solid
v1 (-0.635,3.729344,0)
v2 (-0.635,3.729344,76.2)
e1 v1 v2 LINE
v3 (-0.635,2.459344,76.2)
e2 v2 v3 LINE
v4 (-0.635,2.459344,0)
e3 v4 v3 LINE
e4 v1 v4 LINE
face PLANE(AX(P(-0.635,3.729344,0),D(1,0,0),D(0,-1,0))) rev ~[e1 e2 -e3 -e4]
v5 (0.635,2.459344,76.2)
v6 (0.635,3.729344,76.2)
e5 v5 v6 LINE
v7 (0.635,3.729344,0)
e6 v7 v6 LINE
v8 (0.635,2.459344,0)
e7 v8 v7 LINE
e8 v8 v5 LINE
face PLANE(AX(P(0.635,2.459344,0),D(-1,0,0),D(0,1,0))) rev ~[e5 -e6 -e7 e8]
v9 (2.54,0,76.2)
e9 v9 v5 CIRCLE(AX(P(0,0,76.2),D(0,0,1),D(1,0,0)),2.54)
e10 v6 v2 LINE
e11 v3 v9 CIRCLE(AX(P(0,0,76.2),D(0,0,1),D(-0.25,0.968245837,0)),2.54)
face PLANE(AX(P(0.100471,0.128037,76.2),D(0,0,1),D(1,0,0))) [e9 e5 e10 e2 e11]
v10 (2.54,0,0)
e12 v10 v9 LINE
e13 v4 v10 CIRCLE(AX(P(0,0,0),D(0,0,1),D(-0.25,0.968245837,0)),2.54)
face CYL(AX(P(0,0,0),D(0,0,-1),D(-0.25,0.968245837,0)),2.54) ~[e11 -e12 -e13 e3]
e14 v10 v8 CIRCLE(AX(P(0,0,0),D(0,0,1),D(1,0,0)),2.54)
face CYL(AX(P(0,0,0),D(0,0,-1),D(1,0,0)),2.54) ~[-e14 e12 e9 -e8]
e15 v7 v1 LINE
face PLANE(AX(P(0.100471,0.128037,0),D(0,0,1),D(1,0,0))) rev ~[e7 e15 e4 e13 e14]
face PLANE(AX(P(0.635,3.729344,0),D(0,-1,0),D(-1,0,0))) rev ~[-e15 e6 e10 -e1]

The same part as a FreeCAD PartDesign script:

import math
import FreeCAD as App
import Part
import Sketcher

V = App.Vector
Q = App.Units.Quantity

doc = App.newDocument("Part")
body = doc.addObject("PartDesign::Body", "Body")

sketch1 = body.newObject("Sketcher::SketchObject", "Sketch")
sketch1.AttachmentSupport = (doc.getObject("XY_Plane"), [""])
sketch1.MapMode = "FlatFace"
sketch1.addGeometry([
    Part.ArcOfCircle(Part.Circle(V(0, 0, 0), V(0, 0, 1), 2.54), math.radians(104.477512), math.radians(360)),
    Part.ArcOfCircle(Part.Circle(V(0, 0, 0), V(0, 0, 1), 2.54), math.radians(0), math.radians(75.522488)),
    Part.LineSegment(V(0.635, 2.459344, 0), V(0.635, 3.729344, 0)),
    Part.LineSegment(V(0.635, 3.729344, 0), V(-0.635, 3.729344, 0)),
    Part.LineSegment(V(-0.635, 3.729344, 0), V(-0.635, 2.459344, 0)),
], False)
sketch1.addConstraint([
    Sketcher.Constraint("Tangent", 0, 2, 1, 1),
    Sketcher.Constraint("Coincident", 1, 2, 2, 1),
    Sketcher.Constraint("Coincident", 2, 2, 3, 1),
    Sketcher.Constraint("Coincident", 3, 2, 4, 1),
    Sketcher.Constraint("Coincident", 4, 2, 0, 1),
    Sketcher.Constraint("Vertical", 2),
    Sketcher.Constraint("Horizontal", 3),
    Sketcher.Constraint("Vertical", 4),
    Sketcher.Constraint("Coincident", 0, 3, -1, 1),
    Sketcher.Constraint("Equal", 0, 1),
    Sketcher.Constraint("PointOnObject", 0, 2, -1),
    Sketcher.Constraint("Horizontal", 1, 2, 4, 2),
    Sketcher.Constraint("Equal", 3, 2),
    Sketcher.Constraint("Radius", 0, Q("0.1 in")),
    Sketcher.Constraint("DistanceX", 3, 2, 3, 1, Q("0.05 in")),
])
pad1 = body.newObject("PartDesign::Pad", "Pad")
pad1.Profile = sketch1
pad1.Length = Q("3 in")

doc.recompute()
